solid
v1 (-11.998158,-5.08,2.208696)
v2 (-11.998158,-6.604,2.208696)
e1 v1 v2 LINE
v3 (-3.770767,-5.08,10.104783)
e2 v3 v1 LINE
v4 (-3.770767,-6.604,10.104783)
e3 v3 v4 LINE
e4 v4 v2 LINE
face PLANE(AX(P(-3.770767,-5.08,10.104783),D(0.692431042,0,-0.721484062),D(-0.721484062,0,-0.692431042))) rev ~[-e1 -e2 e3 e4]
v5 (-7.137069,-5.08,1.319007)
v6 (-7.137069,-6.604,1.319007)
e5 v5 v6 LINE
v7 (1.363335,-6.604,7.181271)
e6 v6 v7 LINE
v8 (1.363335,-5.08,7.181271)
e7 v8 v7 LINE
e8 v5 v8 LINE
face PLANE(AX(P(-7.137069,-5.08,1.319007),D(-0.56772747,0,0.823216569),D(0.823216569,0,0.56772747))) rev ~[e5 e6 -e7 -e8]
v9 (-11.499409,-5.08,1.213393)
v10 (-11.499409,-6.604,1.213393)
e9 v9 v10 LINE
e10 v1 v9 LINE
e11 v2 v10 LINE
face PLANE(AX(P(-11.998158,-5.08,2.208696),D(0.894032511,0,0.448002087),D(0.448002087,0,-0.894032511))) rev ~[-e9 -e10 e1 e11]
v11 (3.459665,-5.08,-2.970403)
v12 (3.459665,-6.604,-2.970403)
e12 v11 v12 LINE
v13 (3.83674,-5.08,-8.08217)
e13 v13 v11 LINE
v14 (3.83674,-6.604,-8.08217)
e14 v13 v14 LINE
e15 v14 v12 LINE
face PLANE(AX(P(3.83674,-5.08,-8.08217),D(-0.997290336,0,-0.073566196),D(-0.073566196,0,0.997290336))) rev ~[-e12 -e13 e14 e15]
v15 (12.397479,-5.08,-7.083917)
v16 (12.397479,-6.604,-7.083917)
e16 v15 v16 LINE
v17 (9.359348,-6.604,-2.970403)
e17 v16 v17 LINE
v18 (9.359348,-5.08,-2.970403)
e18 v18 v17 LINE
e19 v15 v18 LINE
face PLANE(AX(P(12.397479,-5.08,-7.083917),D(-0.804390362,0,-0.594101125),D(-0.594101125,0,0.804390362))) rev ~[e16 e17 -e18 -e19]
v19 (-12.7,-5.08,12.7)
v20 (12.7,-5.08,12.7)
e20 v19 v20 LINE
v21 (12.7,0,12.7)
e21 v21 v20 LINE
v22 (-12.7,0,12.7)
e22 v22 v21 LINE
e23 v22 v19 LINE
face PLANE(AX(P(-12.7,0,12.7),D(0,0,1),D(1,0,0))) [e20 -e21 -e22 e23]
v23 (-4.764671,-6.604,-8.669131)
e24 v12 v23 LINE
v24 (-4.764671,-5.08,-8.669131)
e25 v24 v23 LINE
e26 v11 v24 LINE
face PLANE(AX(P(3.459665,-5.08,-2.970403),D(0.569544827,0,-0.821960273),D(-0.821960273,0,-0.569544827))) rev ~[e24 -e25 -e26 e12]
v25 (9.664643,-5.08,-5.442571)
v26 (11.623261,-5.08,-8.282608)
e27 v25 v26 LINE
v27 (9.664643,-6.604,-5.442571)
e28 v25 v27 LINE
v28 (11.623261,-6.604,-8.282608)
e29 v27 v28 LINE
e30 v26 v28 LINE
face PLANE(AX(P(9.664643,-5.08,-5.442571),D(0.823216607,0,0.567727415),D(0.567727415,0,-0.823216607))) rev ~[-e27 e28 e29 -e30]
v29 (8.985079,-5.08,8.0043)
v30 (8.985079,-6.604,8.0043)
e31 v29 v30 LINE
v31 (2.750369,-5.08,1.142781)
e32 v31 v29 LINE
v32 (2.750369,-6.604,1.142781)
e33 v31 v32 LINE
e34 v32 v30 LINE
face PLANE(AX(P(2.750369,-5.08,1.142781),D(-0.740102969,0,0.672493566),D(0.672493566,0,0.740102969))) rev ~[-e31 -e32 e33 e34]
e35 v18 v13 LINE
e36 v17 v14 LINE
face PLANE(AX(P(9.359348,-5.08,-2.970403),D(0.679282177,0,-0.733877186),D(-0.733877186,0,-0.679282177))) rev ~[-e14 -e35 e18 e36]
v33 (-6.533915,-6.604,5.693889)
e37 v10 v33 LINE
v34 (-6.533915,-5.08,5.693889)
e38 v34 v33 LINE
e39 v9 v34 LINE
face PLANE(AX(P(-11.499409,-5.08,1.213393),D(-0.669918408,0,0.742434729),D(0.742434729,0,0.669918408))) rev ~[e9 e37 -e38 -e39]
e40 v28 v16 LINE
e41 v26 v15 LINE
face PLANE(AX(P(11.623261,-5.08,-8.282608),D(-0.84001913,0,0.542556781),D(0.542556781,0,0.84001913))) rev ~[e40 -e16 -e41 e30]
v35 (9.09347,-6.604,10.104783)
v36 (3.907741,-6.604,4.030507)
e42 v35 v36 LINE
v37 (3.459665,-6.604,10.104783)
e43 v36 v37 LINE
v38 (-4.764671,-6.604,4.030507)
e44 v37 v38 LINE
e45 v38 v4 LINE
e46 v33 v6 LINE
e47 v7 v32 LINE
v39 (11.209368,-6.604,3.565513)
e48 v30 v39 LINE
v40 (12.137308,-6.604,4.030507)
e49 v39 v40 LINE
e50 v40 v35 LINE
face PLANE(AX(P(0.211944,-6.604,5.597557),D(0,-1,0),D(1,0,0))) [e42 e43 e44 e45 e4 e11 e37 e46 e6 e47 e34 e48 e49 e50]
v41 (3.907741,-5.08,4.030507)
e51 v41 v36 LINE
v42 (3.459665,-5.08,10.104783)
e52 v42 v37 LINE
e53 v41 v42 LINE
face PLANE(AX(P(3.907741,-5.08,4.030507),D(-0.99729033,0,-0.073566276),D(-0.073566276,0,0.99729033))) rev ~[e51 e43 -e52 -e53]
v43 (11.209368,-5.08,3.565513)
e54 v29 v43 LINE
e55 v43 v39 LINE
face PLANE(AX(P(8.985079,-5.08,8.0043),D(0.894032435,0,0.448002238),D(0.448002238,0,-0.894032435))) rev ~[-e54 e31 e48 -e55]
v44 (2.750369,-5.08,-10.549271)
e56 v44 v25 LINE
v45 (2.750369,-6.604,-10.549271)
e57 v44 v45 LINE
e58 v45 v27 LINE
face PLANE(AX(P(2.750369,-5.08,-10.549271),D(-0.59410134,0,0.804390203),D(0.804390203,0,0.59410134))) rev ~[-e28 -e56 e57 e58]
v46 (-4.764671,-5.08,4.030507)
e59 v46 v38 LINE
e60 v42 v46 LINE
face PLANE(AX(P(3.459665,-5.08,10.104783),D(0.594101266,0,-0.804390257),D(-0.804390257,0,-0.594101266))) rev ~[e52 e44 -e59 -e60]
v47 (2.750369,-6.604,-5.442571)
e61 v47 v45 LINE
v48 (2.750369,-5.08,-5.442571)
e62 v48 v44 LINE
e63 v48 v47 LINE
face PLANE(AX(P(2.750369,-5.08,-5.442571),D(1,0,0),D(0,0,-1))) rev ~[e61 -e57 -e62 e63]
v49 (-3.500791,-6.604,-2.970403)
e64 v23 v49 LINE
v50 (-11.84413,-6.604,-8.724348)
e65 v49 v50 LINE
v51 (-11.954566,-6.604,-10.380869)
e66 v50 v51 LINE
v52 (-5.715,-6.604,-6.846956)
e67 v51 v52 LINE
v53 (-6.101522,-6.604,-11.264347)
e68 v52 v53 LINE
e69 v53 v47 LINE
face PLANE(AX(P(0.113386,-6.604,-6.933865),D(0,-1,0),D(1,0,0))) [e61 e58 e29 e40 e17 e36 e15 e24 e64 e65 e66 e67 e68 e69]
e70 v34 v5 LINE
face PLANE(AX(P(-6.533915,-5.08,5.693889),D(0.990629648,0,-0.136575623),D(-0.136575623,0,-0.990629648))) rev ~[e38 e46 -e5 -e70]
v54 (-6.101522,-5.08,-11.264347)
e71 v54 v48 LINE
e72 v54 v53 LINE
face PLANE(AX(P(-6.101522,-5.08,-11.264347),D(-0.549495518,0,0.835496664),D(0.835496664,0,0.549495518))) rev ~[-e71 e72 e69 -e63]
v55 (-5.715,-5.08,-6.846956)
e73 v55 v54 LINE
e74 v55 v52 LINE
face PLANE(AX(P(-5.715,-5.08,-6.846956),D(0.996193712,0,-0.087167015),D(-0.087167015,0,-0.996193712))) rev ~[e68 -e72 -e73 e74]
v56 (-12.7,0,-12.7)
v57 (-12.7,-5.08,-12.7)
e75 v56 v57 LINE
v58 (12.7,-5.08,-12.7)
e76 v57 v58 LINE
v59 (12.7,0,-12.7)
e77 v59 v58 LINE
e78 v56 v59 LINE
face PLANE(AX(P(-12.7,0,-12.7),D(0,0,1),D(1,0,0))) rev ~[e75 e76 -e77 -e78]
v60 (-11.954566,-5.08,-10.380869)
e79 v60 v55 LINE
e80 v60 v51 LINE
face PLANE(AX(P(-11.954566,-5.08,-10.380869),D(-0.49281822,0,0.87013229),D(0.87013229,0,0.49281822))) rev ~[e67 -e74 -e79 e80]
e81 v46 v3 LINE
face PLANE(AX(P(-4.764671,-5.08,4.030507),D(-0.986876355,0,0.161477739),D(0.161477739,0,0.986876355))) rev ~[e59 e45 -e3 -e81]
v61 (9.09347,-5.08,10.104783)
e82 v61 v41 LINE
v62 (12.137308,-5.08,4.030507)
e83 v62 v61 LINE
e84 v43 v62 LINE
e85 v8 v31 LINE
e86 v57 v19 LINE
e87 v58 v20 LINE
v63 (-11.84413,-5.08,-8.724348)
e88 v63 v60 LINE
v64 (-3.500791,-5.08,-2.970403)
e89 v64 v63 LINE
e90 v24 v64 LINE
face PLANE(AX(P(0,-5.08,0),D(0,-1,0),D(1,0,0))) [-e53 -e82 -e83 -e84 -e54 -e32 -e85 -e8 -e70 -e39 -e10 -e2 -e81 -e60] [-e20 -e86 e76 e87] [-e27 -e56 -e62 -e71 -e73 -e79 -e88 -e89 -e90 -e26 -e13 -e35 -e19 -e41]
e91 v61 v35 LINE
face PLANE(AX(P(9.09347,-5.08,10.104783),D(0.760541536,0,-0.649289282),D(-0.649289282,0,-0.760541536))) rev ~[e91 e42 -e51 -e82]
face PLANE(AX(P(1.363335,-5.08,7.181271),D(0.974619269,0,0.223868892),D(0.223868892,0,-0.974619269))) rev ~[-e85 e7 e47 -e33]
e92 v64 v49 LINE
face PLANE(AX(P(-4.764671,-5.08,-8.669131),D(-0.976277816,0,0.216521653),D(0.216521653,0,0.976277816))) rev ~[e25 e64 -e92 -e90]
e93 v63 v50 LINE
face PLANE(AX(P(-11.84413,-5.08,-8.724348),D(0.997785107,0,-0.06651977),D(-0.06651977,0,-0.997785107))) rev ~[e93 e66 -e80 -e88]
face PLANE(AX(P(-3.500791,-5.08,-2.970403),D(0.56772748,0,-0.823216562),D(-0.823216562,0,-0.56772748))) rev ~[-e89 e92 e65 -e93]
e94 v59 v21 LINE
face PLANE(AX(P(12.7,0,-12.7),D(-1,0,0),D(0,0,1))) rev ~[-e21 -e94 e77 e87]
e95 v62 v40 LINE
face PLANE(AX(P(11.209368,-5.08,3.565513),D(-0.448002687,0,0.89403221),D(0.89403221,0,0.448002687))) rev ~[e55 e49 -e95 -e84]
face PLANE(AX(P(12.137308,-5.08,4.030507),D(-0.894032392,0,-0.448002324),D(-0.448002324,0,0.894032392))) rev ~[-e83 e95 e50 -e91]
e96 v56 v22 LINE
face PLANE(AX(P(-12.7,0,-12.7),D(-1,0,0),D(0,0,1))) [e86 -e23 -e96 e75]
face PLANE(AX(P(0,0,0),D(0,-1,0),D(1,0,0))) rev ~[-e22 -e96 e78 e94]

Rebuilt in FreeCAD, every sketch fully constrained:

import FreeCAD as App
import Part
import Sketcher

V = App.Vector
Q = App.Units.Quantity

doc = App.newDocument("Part")
body = doc.addObject("PartDesign::Body", "Body")

# Sketch on XZ plane
sketch1 = body.newObject("Sketcher::SketchObject", "Sketch")
sketch1.AttachmentSupport = (doc.getObject("XZ_Plane"), [""])
sketch1.MapMode = "FlatFace"
sketch1.addGeometry(Part.LineSegment(V(-13, 13, 0), V(-13, -13, 0)), False)
sketch1.addGeometry(Part.LineSegment(V(-13, -13, 0), V(13, -13, 0)), False)
sketch1.addGeometry(Part.LineSegment(V(13, -13, 0), V(13, 13, 0)), False)
sketch1.addGeometry(Part.LineSegment(V(13, 13, 0), V(-13, 13, 0)), False)
sketch1.addConstraint(Sketcher.Constraint("Coincident", 0, 2, 1, 1))
sketch1.addConstraint(Sketcher.Constraint("Coincident", 1, 2, 2, 1))
sketch1.addConstraint(Sketcher.Constraint("Coincident", 2, 2, 3, 1))
sketch1.addConstraint(Sketcher.Constraint("Coincident", 3, 2, 0, 1))
sketch1.addConstraint(Sketcher.Constraint("Vertical", 0))
sketch1.addConstraint(Sketcher.Constraint("Horizontal", 1))
sketch1.addConstraint(Sketcher.Constraint("Vertical", 2))
sketch1.addConstraint(Sketcher.Constraint("Horizontal", 3))
sketch1.addConstraint(Sketcher.Constraint("Symmetric", 0, 2, 2, 2, -1, 1))
sketch1.addConstraint(Sketcher.Constraint("Equal", 3, 0))
sketch1.addConstraint(Sketcher.Constraint("DistanceX", 1, 1, 1, 2, Q("1 in")))
pad1 = body.newObject("PartDesign::Pad", "Pad")
pad1.Profile = sketch1
pad1.Length = Q("0.2 in")

# Sketch on XZ plane
sketch2 = body.newObject("Sketcher::SketchObject", "Sketch001")
sketch2.AttachmentSupport = (doc.getObject("XZ_Plane"), [""])
sketch2.MapMode = "FlatFace"
sketch2.AttachmentOffset = App.Placement(V(0, 0, 0.2 * 25.4), App.Rotation())
sketch2.addGeometry(Part.LineSegment(V(-3.770767, 10.104783, 0), V(-11.998158, 2.208696, 0)), False)
sketch2.addGeometry(Part.LineSegment(V(-11.998158, 2.208696, 0), V(-11.499409, 1.213393, 0)), False)
sketch2.addGeometry(Part.LineSegment(V(-11.499409, 1.213393, 0), V(-6.533915, 5.693889, 0)), False)
sketch2.addGeometry(Part.LineSegment(V(-6.533915, 5.693889, 0), V(-7.137069, 1.319007, 0)), False)
sketch2.addGeometry(Part.LineSegment(V(-7.137069, 1.319007, 0), V(1.363335, 7.181271, 0)), False)
sketch2.addGeometry(Part.LineSegment(V(1.363335, 7.181271, 0), V(2.750369, 1.142781, 0)), False)
sketch2.addGeometry(Part.LineSegment(V(2.750369, 1.142781, 0), V(8.985079, 8.0043, 0)), False)
sketch2.addGeometry(Part.LineSegment(V(8.985079, 8.0043, 0), V(11.209368, 3.565513, 0)), False)
sketch2.addGeometry(Part.LineSegment(V(11.209368, 3.565513, 0), V(12.137308, 4.030507, 0)), False)
sketch2.addGeometry(Part.LineSegment(V(12.137308, 4.030507, 0), V(9.09347, 10.104783, 0)), False)
sketch2.addGeometry(Part.LineSegment(V(9.09347, 10.104783, 0), V(3.907741, 4.030507, 0)), False)
sketch2.addGeometry(Part.LineSegment(V(3.907741, 4.030507, 0), V(3.459665, 10.104783, 0)), False)
sketch2.addGeometry(Part.LineSegment(V(3.459665, 10.104783, 0), V(-4.764671, 4.030507, 0)), False)
sketch2.addGeometry(Part.LineSegment(V(-4.764671, 4.030507, 0), V(-3.770767, 10.104783, 0)), False)
sketch2.addGeometry(Part.LineSegment(V(-3.500791, -2.970403, 0), V(-11.84413, -8.724348, 0)), False)
sketch2.addGeometry(Part.LineSegment(V(-11.84413, -8.724348, 0), V(-11.954566, -10.380869, 0)), False)
sketch2.addGeometry(Part.LineSegment(V(-11.954566, -10.380869, 0), V(-5.715, -6.846956, 0)), False)
sketch2.addGeometry(Part.LineSegment(V(-5.715, -6.846956, 0), V(-6.101522, -11.264347, 0)), False)
sketch2.addGeometry(Part.LineSegment(V(-6.101522, -11.264347, 0), V(2.750369, -5.442571, 0)), False)
sketch2.addGeometry(Part.LineSegment(V(2.750369, -5.442571, 0), V(2.750369, -10.549271, 0)), False)
sketch2.addGeometry(Part.LineSegment(V(2.750369, -10.549271, 0), V(9.664643, -5.442571, 0)), False)
sketch2.addGeometry(Part.LineSegment(V(9.664643, -5.442571, 0), V(11.623261, -8.282608, 0)), False)
sketch2.addGeometry(Part.LineSegment(V(11.623261, -8.282608, 0), V(12.397479, -7.083917, 0)), False)
sketch2.addGeometry(Part.LineSegment(V(12.397479, -7.083917, 0), V(9.359348, -2.970403, 0)), False)
sketch2.addGeometry(Part.LineSegment(V(9.359348, -2.970403, 0), V(3.83674, -8.08217, 0)), False)
sketch2.addGeometry(Part.LineSegment(V(3.83674, -8.08217, 0), V(3.459665, -2.970403, 0)), False)
sketch2.addGeometry(Part.LineSegment(V(3.459665, -2.970403, 0), V(-4.764671, -8.669131, 0)), False)
sketch2.addGeometry(Part.LineSegment(V(-4.764671, -8.669131, 0), V(-3.500791, -2.970403, 0)), False)
sketch2.addConstraint(Sketcher.Constraint("Coincident", 0, 2, 1, 1))
sketch2.addConstraint(Sketcher.Constraint("Coincident", 1, 2, 2, 1))
sketch2.addConstraint(Sketcher.Constraint("Coincident", 2, 2, 3, 1))
sketch2.addConstraint(Sketcher.Constraint("Coincident", 3, 2, 4, 1))
sketch2.addConstraint(Sketcher.Constraint("Coincident", 4, 2, 5, 1))
sketch2.addConstraint(Sketcher.Constraint("Coincident", 5, 2, 6, 1))
sketch2.addConstraint(Sketcher.Constraint("Coincident", 6, 2, 7, 1))
sketch2.addConstraint(Sketcher.Constraint("Coincident", 7, 2, 8, 1))
sketch2.addConstraint(Sketcher.Constraint("Coincident", 8, 2, 9, 1))
sketch2.addConstraint(Sketcher.Constraint("Coincident", 9, 2, 10, 1))
sketch2.addConstraint(Sketcher.Constraint("Coincident", 10, 2, 11, 1))
sketch2.addConstraint(Sketcher.Constraint("Coincident", 11, 2, 12, 1))
sketch2.addConstraint(Sketcher.Constraint("Coincident", 12, 2, 13, 1))
sketch2.addConstraint(Sketcher.Constraint("Coincident", 13, 2, 0, 1))
sketch2.addConstraint(Sketcher.Constraint("Coincident", 14, 2, 15, 1))
sketch2.addConstraint(Sketcher.Constraint("Coincident", 15, 2, 16, 1))
sketch2.addConstraint(Sketcher.Constraint("Coincident", 16, 2, 17, 1))
sketch2.addConstraint(Sketcher.Constraint("Coincident", 17, 2, 18, 1))
sketch2.addConstraint(Sketcher.Constraint("Coincident", 18, 2, 19, 1))
sketch2.addConstraint(Sketcher.Constraint("Coincident", 19, 2, 20, 1))
sketch2.addConstraint(Sketcher.Constraint("Coincident", 20, 2, 21, 1))
sketch2.addConstraint(Sketcher.Constraint("Coincident", 21, 2, 22, 1))
sketch2.addConstraint(Sketcher.Constraint("Coincident", 22, 2, 23, 1))
sketch2.addConstraint(Sketcher.Constraint("Coincident", 23, 2, 24, 1))
sketch2.addConstraint(Sketcher.Constraint("Coincident", 24, 2, 25, 1))
sketch2.addConstraint(Sketcher.Constraint("Coincident", 25, 2, 26, 1))
sketch2.addConstraint(Sketcher.Constraint("Coincident", 26, 2, 27, 1))
sketch2.addConstraint(Sketcher.Constraint("Coincident", 27, 2, 14, 1))
sketch2.addConstraint(Sketcher.Constraint("Vertical", 19))
sketch2.addConstraint(Sketcher.Constraint("DistanceY", 17, 2, 14, 2, Q("0.1 in")))
sketch2.addConstraint(Sketcher.Constraint("DistanceX", 16, 2, -1, 1, Q("0.225 in")))
sketch2.addConstraint(Sketcher.Constraint("DistanceY", 19, 2, 19, 1, 5.1067))
sketch2.addConstraint(Sketcher.Constraint("Distance", 15, 1.660198))
sketch2.addConstraint(Sketcher.Constraint("Distance", 27, 5.837199))
sketch2.addConstraint(Sketcher.Constraint("DistanceY", -1, 1, 6, 2, 8.0043))
sketch2.addConstraint(Sketcher.Constraint("DistanceX", 5, 2, 7, 2, 8.458999))
sketch2.addConstraint(Sketcher.Constraint("DistanceX", 5, 2, 9, 2, 6.343101))
sketch2.addConstraint(Sketcher.Constraint("DistanceX", 3, 2, 12, 2, 2.372398))
sketch2.addConstraint(Sketcher.Constraint("DistanceY", 3, 2, 12, 2, 2.7115))
sketch2.addConstraint(Sketcher.Constraint("DistanceY", 19, 2, 20, 2, 5.1067))
sketch2.addConstraint(Sketcher.Constraint("DistanceY", 19, 2, 24, 2, 2.467101))
sketch2.addConstraint(Sketcher.Constraint("Distance", 2, 6.688122))
sketch2.addConstraint(Sketcher.Constraint("Distance", 4, 10.325842))
sketch2.addConstraint(Sketcher.Constraint("Distance", 11, 6.09078))
sketch2.addConstraint(Sketcher.Constraint("Distance", 12, 10.224311))
sketch2.addConstraint(Sketcher.Constraint("Distance", 17, 4.434269))
sketch2.addConstraint(Sketcher.Constraint("Distance", 20, 8.595672))
sketch2.addConstraint(Sketcher.Constraint("Distance", 22, 1.426981))
sketch2.addConstraint(Sketcher.Constraint("Distance", 23, 5.113828))
sketch2.addConstraint(Sketcher.Constraint("Distance", 24, 7.525248))
sketch2.addConstraint(Sketcher.Constraint("Distance", 26, 10.005759))
sketch2.addConstraint(Sketcher.Constraint("DistanceX", 1, 2, -1, 1, 11.499409))
sketch2.addConstraint(Sketcher.Constraint("DistanceY", -1, 1, 2, 2, 5.693889))
sketch2.addConstraint(Sketcher.Constraint("DistanceX", 3, 2, -1, 1, 7.137069))
sketch2.addConstraint(Sketcher.Constraint("DistanceY", -1, 1, 4, 2, 7.181271))
sketch2.addConstraint(Sketcher.Constraint("DistanceX", -1, 1, 5, 2, 2.750369))
sketch2.addConstraint(Sketcher.Constraint("DistanceY", -1, 1, 5, 2, 1.142781))
sketch2.addConstraint(Sketcher.Constraint("DistanceX", -1, 1, 6, 2, 8.985079))
sketch2.addConstraint(Sketcher.Constraint("DistanceX", -1, 1, 8, 2, 12.137308))
sketch2.addConstraint(Sketcher.Constraint("DistanceX", -1, 1, 10, 2, 3.907741))
sketch2.addConstraint(Sketcher.Constraint("DistanceX", 14, 2, -1, 1, 11.84413))
sketch2.addConstraint(Sketcher.Constraint("DistanceY", 14, 2, -1, 1, 8.724348))
sketch2.addConstraint(Sketcher.Constraint("DistanceY", 15, 2, -1, 1, 10.380869))
sketch2.addConstraint(Sketcher.Constraint("DistanceX", -1, 1, 18, 2, 2.750369))
sketch2.addConstraint(Sketcher.Constraint("DistanceY", 18, 2, -1, 1, 5.442571))
sketch2.addConstraint(Sketcher.Constraint("DistanceX", -1, 1, 21, 2, 11.623261))
sketch2.addConstraint(Sketcher.Constraint("DistanceX", -1, 1, 22, 2, 12.397479))
sketch2.addConstraint(Sketcher.Constraint("DistanceX", -1, 1, 23, 2, 9.359348))
sketch2.addConstraint(Sketcher.Constraint("DistanceX", -1, 1, 24, 2, 3.83674))
sketch2.addConstraint(Sketcher.Constraint("DistanceX", 26, 2, -1, 1, 4.764671))
sketch2.addConstraint(Sketcher.Constraint("DistanceY", 26, 2, -1, 1, 8.669131))
sketch2.addConstraint(Sketcher.Constraint("DistanceX", 27, 2, -1, 1, 3.500791))
sketch2.addConstraint(Sketcher.Constraint("DistanceX", 0, 2, 1, 2, 0.498749))
sketch2.addConstraint(Sketcher.Constraint("DistanceY", 3, 2, 0, 2, 0.889689))
sketch2.addConstraint(Sketcher.Constraint("DistanceX", 2, 2, 4, 2, 7.89725))
sketch2.addConstraint(Sketcher.Constraint("DistanceY", 5, 2, 1, 2, 0.070612))
sketch2.addConstraint(Sketcher.Constraint("DistanceY", 5, 2, 7, 2, 2.422732))
sketch2.addConstraint(Sketcher.Constraint("DistanceY", 7, 2, 9, 2, 6.53927))
sketch2.addConstraint(Sketcher.Constraint("DistanceX", 4, 2, 11, 2, 2.09633))
sketch2.addConstraint(Sketcher.Constraint("DistanceX", 2, 2, 13, 2, 2.763148))
sketch2.addConstraint(Sketcher.Constraint("DistanceY", 4, 2, 13, 2, 2.923512))
sketch2.addConstraint(Sketcher.Constraint("DistanceY", 16, 2, 1, 2, 8.060349))
sketch2.addConstraint(Sketcher.Constraint("DistanceY", 20, 2, 8, 2, 9.473078))
sketch2.addConstraint(Sketcher.Constraint("Distance", 25, 5.125656))
pad2 = body.newObject("PartDesign::Pad", "Pad001")
pad2.Profile = sketch2
pad2.Length = Q("0.06 in")

doc.recompute()
